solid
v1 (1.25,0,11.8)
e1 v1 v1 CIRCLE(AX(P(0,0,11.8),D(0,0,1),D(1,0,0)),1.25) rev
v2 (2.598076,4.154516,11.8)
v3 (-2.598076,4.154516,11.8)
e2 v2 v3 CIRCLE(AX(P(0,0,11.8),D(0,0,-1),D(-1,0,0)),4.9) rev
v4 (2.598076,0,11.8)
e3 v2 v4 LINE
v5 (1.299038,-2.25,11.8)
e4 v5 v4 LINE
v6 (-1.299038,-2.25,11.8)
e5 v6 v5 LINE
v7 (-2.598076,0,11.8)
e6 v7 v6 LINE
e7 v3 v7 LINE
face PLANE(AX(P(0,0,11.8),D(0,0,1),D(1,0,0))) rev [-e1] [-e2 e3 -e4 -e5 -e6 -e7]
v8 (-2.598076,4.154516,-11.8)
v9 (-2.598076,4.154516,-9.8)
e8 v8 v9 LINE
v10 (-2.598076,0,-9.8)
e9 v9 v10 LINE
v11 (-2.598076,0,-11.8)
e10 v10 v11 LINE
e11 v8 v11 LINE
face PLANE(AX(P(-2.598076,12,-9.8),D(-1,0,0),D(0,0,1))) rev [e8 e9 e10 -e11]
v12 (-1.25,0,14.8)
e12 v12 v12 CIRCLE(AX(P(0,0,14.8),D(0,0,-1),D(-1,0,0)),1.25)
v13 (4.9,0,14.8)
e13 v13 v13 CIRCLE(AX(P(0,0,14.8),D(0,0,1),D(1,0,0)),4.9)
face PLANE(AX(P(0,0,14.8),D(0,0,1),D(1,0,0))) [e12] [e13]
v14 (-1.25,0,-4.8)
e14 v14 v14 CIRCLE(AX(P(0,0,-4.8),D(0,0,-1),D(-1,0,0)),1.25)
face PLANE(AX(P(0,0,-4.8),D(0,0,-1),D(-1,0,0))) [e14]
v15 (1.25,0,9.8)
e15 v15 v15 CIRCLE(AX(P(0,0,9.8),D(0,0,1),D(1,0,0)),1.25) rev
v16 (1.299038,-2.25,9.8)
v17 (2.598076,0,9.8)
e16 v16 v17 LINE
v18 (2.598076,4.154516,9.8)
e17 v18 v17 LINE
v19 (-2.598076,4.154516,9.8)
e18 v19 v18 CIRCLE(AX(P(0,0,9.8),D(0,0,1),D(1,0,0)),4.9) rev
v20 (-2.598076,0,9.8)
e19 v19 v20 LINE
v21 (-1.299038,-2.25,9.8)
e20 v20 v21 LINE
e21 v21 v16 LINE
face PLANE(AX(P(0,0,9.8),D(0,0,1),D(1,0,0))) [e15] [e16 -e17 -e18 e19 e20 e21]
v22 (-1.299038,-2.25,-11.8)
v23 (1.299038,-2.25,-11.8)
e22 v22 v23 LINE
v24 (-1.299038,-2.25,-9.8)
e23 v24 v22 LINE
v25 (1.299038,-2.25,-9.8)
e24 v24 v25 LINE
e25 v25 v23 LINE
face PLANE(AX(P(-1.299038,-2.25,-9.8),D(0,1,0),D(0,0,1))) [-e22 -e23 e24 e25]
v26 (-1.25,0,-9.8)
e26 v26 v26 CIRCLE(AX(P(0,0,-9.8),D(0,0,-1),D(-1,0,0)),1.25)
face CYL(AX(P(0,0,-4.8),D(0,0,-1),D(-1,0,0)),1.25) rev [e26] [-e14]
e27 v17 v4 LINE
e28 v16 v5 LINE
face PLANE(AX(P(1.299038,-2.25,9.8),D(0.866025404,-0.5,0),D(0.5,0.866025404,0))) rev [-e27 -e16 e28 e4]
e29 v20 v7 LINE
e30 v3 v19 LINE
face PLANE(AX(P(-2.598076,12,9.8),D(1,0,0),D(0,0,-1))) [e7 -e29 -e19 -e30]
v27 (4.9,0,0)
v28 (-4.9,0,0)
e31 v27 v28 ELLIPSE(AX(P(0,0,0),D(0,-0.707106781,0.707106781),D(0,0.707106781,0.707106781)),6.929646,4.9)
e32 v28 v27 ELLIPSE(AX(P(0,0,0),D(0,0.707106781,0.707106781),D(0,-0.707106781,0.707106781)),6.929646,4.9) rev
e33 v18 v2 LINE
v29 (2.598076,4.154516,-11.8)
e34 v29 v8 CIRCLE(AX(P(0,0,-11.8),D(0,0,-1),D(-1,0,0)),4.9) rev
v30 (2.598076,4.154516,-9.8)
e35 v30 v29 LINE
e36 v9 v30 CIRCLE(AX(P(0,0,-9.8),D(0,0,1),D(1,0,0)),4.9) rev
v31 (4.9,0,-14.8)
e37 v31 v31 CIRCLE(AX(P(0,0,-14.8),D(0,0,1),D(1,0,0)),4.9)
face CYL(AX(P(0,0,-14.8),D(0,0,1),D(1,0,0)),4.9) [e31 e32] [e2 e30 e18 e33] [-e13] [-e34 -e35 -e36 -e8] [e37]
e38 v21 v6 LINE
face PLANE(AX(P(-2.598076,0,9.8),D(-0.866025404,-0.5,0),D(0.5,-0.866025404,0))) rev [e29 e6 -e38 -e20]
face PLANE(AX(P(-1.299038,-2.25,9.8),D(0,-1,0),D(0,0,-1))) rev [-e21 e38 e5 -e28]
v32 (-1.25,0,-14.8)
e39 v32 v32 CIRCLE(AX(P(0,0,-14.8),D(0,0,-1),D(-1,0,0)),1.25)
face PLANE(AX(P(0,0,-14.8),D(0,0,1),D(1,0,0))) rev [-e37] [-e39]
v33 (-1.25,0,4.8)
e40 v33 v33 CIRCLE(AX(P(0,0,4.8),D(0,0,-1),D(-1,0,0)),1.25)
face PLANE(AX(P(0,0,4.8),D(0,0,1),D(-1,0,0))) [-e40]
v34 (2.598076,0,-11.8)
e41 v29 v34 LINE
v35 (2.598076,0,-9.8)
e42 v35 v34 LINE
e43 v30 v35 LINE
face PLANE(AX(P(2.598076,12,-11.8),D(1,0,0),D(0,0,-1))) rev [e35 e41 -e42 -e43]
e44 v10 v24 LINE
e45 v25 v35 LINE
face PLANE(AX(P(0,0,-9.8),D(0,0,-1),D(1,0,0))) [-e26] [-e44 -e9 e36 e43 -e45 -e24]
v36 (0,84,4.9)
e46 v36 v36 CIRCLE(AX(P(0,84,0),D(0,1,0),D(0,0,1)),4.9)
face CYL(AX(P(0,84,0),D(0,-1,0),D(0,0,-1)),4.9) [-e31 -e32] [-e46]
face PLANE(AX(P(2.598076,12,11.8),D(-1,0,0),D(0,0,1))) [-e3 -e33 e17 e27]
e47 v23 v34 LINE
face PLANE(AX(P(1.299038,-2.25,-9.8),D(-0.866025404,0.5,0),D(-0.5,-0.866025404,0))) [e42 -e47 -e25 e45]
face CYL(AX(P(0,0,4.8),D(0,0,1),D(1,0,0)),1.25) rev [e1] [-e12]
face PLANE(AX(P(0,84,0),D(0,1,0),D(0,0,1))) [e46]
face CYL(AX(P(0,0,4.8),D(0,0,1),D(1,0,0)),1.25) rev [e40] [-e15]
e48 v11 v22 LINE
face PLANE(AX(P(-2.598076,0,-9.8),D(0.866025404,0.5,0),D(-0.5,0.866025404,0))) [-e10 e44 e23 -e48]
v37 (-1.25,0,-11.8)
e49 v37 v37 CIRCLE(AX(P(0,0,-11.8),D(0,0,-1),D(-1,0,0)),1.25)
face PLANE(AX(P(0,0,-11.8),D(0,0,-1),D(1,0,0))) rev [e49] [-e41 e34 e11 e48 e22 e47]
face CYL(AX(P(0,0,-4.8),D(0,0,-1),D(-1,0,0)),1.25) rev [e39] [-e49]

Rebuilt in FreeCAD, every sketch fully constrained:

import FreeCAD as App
import Part
import Sketcher
Q = App.Units.Quantity

doc = App.newDocument("Part")
body = doc.addObject("PartDesign::Body", "Body")

# Sketch on XY plane
sketch1 = doc.addObject("Sketcher::SketchObject", "Sketch")
body.addObject(sketch1)
sketch1.AttachmentSupport = (doc.XY_Plane, [""])
sketch1.MapMode = "FlatFace"
sketch1.addGeometry(Part.Circle(App.Vector(0, 0, 0), App.Vector(0, 0, 1), 4.9), False)
sketch1.addConstraint([
    Sketcher.Constraint("Coincident", 0, 3, -1, 1),
    Sketcher.Constraint("Diameter", 0, 9.8),
])
pad1 = doc.addObject("PartDesign::Pad", "Pad")
body.addObject(pad1)
pad1.Profile = sketch1
pad1.Type = "TwoLengths"
pad1.Length = 14.8
pad1.Length2 = 14.8

# Sketch on XZ plane
sketch2 = doc.addObject("Sketcher::SketchObject", "Sketch001")
body.addObject(sketch2)
sketch2.AttachmentSupport = (doc.XZ_Plane, [""])
sketch2.MapMode = "FlatFace"
sketch2.addGeometry(Part.Circle(App.Vector(0, 0, 0), App.Vector(0, 0, 1), 4.9), False)
sketch2.addConstraint([
    Sketcher.Constraint("Coincident", 0, 3, -1, 1),
    Sketcher.Constraint("Diameter", 0, 9.8),
])
pad2 = doc.addObject("PartDesign::Pad", "Pad001")
body.addObject(pad2)
pad2.Profile = sketch2
pad2.Length = 84
pad2.Reversed = True

# Sketch on XY plane
sketch3 = doc.addObject("Sketcher::SketchObject", "Sketch002")
body.addObject(sketch3)
sketch3.AttachmentSupport = (doc.XY_Plane, [""])
sketch3.MapMode = "FlatFace"
sketch3.AttachmentOffset = App.Placement(App.Vector(0, 0, 11.8), App.Rotation())
sketch3.addGeometry([
    Part.LineSegment(App.Vector(2.598076, 0, 0), App.Vector(1.299038, 2.25, 0)),  # 0
    Part.LineSegment(App.Vector(1.299038, 2.25, 0), App.Vector(-1.299038, 2.25, 0)),  # 1
    Part.LineSegment(App.Vector(-1.299038, 2.25, 0), App.Vector(-2.598076, 0, 0)),  # 2
    Part.LineSegment(App.Vector(-2.598076, 0, 0), App.Vector(-1.299038, -2.25, 0)),  # 3
    Part.LineSegment(App.Vector(-1.299038, -2.25, 0), App.Vector(1.299038, -2.25, 0)),  # 4
    Part.LineSegment(App.Vector(1.299038, -2.25, 0), App.Vector(2.598076, 0, 0)),  # 5
], False)
sketch3.addConstraint([
    Sketcher.Constraint("Coincident", 0, 2, 1, 1),
    Sketcher.Constraint("Coincident", 1, 2, 2, 1),
    Sketcher.Constraint("Coincident", 2, 2, 3, 1),
    Sketcher.Constraint("Coincident", 3, 2, 4, 1),
    Sketcher.Constraint("Coincident", 4, 2, 5, 1),
    Sketcher.Constraint("Coincident", 5, 2, 0, 1),
    Sketcher.Constraint("Horizontal", 1),
    Sketcher.Constraint("Horizontal", 4),
    Sketcher.Constraint("Symmetric", 0, 2, 3, 2, -1, 1),
    Sketcher.Constraint("Symmetric", 2, 2, 5, 2, -1, 1),
    Sketcher.Constraint("PointOnObject", 2, 2, -1),
    Sketcher.Constraint("Parallel", 2, 5),
    Sketcher.Constraint("Vertical", 1, 2, 3, 2),
    Sketcher.Constraint("Angle", 0, Q("120 deg")),
    Sketcher.Constraint("DistanceY", 3, 2, 1, 2, 4.5),
    Sketcher.Constraint("DistanceX", 1, 2, 1, 1, 2.598076),
])
pocket1 = doc.addObject("PartDesign::Pocket", "Pocket")
body.addObject(pocket1)
pocket1.Profile = sketch3
pocket1.Length = 2

# Sketch on XZ plane
sketch4 = doc.addObject("Sketcher::SketchObject", "Sketch003")
body.addObject(sketch4)
sketch4.AttachmentSupport = (doc.XZ_Plane, [""])
sketch4.MapMode = "FlatFace"
sketch4.addGeometry([
    Part.LineSegment(App.Vector(-2.598076, 9.8, 0), App.Vector(-2.598076, 11.8, 0)),
    Part.LineSegment(App.Vector(-2.598076, 11.8, 0), App.Vector(2.598076, 11.8, 0)),
    Part.LineSegment(App.Vector(2.598076, 11.8, 0), App.Vector(2.598076, 9.8, 0)),
    Part.LineSegment(App.Vector(2.598076, 9.8, 0), App.Vector(-2.598076, 9.8, 0)),
], False)
sketch4.addConstraint([
    Sketcher.Constraint("Coincident", 0, 2, 1, 1),
    Sketcher.Constraint("Coincident", 1, 2, 2, 1),
    Sketcher.Constraint("Coincident", 2, 2, 3, 1),
    Sketcher.Constraint("Coincident", 3, 2, 0, 1),
    Sketcher.Constraint("Vertical", 0),
    Sketcher.Constraint("Horizontal", 1),
    Sketcher.Constraint("Vertical", 2),
    Sketcher.Constraint("Horizontal", 3),
    Sketcher.Constraint("DistanceY", 0, 1, 0, 2, 2.0),
    Sketcher.Constraint("DistanceY", -1, 1, 0, 2, 11.8),
    Sketcher.Constraint("DistanceX", 1, 1, 1, 2, 5.196152),
    Sketcher.Constraint("DistanceX", 0, 2, -1, 1, 2.598076),
])
pocket2 = doc.addObject("PartDesign::Pocket", "Pocket001")
body.addObject(pocket2)
pocket2.Profile = sketch4
pocket2.Length = 12
doc.recompute()

mirrored = doc.addObject("PartDesign::Mirrored", "Mirrored")
body.addObject(mirrored)
mirrored.Originals = [pocket1, pocket2]
mirrored.MirrorPlane = (doc.XY_Plane, [""])
body.Tip = mirrored

# Sketch on XY plane
sketch5 = doc.addObject("Sketcher::SketchObject", "Sketch004")
body.addObject(sketch5)
sketch5.AttachmentSupport = (doc.XY_Plane, [""])
sketch5.MapMode = "FlatFace"
sketch5.AttachmentOffset = App.Placement(App.Vector(0, 0, -14.8), App.Rotation())
sketch5.addGeometry(Part.Circle(App.Vector(0, 0, 0), App.Vector(0, 0, 1), 1.25), False)
sketch5.addConstraint([
    Sketcher.Constraint("Coincident", 0, 3, -1, 1),
    Sketcher.Constraint("Diameter", 0, 2.5),
])
pocket3 = doc.addObject("PartDesign::Pocket", "Pocket002")
body.addObject(pocket3)
pocket3.Profile = sketch5
pocket3.Length = 10
pocket3.Reversed = True
doc.recompute()

mirrored2 = doc.addObject("PartDesign::Mirrored", "Mirrored001")
body.addObject(mirrored2)
mirrored2.Originals = [pocket3]
mirrored2.MirrorPlane = (doc.XY_Plane, [""])
body.Tip = mirrored2

doc.recompute()
